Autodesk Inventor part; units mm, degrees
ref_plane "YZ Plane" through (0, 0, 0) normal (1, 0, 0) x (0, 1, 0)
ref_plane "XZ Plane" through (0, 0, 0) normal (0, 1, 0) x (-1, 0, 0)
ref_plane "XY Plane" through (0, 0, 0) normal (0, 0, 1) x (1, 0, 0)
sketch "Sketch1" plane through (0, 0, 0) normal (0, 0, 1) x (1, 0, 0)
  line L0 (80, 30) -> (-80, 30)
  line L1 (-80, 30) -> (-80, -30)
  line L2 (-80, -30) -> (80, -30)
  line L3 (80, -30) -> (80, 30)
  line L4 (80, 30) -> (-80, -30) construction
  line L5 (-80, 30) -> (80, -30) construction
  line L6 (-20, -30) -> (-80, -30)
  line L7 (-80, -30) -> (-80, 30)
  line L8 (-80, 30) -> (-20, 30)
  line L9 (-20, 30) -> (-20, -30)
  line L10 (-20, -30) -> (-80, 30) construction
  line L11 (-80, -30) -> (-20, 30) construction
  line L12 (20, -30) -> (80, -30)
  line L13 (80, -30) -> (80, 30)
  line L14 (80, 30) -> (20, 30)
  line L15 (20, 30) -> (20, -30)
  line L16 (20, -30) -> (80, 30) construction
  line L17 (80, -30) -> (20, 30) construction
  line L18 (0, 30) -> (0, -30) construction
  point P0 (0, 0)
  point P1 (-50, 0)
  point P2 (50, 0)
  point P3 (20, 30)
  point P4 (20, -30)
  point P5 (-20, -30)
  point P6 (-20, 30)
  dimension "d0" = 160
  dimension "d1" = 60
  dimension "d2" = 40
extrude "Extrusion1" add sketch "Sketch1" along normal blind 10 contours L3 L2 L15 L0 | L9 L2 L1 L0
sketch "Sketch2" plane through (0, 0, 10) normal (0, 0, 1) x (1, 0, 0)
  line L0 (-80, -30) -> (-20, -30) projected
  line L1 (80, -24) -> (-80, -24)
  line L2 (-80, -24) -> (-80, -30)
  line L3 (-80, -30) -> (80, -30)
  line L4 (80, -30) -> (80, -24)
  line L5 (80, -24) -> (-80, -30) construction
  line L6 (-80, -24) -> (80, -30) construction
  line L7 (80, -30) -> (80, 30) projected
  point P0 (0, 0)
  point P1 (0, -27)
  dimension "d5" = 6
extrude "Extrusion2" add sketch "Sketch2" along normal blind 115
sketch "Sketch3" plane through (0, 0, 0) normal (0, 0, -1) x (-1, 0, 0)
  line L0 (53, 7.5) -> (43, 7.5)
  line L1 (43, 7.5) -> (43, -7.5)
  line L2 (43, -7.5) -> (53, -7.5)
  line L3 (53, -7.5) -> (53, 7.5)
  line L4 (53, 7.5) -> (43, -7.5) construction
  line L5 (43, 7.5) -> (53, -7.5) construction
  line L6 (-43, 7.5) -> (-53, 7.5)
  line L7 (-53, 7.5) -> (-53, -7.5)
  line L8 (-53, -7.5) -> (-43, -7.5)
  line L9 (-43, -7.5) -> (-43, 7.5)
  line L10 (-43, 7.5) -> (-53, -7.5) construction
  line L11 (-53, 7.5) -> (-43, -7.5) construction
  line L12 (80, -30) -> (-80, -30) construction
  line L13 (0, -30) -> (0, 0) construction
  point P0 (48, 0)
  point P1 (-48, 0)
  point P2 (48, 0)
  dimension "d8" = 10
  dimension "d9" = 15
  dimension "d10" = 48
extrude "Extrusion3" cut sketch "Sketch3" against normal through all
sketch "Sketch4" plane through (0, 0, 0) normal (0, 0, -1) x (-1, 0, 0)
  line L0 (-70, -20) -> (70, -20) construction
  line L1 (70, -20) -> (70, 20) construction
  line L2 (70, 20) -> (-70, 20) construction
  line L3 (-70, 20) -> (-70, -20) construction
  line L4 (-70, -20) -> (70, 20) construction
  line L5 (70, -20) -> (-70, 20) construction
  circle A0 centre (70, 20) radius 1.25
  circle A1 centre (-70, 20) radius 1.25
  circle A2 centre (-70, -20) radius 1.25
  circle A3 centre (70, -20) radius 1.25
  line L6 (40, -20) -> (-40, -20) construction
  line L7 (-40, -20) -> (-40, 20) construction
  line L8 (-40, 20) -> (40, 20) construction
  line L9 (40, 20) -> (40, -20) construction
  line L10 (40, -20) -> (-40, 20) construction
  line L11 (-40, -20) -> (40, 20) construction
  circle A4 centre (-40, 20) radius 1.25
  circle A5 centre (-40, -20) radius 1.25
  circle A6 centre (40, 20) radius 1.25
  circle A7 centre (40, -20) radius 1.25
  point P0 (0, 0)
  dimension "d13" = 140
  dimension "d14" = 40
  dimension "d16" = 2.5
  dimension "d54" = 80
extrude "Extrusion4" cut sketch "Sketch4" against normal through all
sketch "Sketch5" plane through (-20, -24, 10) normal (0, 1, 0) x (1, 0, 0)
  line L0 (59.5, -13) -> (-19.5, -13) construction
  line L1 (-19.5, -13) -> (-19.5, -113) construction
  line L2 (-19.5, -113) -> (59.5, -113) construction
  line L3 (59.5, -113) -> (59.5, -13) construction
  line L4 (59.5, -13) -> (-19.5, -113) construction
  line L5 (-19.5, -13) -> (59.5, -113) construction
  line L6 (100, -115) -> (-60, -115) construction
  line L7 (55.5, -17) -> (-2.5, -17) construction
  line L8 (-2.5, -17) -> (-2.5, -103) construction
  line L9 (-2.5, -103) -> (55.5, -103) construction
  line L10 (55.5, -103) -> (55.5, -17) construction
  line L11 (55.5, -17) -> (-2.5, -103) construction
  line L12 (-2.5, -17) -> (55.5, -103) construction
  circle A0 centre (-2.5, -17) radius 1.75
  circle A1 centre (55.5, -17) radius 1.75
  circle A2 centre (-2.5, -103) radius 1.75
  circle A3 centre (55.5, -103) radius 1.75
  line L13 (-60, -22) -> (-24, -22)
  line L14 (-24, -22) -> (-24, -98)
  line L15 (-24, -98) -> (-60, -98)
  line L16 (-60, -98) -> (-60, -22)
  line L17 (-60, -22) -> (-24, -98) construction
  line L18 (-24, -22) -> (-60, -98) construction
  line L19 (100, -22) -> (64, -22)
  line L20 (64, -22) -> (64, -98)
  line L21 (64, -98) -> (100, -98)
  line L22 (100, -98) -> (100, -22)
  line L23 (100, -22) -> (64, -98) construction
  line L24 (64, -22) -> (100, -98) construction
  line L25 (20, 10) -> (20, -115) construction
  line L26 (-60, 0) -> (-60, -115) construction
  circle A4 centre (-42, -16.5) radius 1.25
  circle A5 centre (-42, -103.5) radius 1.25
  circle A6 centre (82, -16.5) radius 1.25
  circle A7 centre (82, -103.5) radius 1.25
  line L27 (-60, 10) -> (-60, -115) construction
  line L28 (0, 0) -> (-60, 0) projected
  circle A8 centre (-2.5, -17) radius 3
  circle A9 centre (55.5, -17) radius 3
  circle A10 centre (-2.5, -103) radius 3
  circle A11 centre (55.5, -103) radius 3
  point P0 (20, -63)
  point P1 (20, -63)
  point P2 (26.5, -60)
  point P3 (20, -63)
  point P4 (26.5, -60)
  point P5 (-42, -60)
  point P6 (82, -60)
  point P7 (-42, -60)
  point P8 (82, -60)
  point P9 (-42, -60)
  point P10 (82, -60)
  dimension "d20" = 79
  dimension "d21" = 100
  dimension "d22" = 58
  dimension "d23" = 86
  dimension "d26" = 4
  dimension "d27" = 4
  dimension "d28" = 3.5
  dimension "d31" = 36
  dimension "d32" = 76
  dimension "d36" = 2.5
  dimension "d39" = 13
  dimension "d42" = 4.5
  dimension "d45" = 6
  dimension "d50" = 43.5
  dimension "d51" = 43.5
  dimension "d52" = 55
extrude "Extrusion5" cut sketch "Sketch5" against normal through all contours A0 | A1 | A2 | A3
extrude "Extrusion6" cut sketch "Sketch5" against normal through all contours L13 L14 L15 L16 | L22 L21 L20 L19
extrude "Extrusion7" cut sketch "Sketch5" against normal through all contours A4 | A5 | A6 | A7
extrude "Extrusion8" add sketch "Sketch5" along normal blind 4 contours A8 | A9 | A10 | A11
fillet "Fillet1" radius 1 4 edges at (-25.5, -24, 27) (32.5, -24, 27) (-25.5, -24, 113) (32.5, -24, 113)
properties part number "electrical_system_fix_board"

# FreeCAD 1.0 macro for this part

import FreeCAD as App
import Part
import Sketcher
from FreeCAD import Vector


def edges_at(feature, points):
    """Names of the edges that pass closest to the given points."""
    edges = feature.Shape.Edges
    near = lambda p: min(range(len(edges)), key=lambda i: edges[i].distToShape(Part.Vertex(*p))[0])
    return sorted({f"Edge{near(p) + 1}" for p in points})

doc = App.newDocument("Part")
body = doc.addObject("PartDesign::Body", "Body")
body.AllowCompound = True

sketch1 = body.newObject("Sketcher::SketchObject", "Sketch")
sketch1.AttachmentSupport = (doc.getObject("XY_Plane"), [""])
sketch1.MapMode = "FlatFace"
sketch1.addGeometry([
    Part.LineSegment(Vector(80, -30, 0), Vector(80, 30, 0)),
    Part.LineSegment(Vector(80, 30, 0), Vector(20, 30, 0)),
    Part.LineSegment(Vector(20, 30, 0), Vector(20, -30, 0)),
    Part.LineSegment(Vector(20, -30, 0), Vector(80, -30, 0)),
    Part.LineSegment(Vector(-20, -30, 0), Vector(-20, 30, 0)),
    Part.LineSegment(Vector(-20, 30, 0), Vector(-80, 30, 0)),
    Part.LineSegment(Vector(-80, 30, 0), Vector(-80, -30, 0)),
    Part.LineSegment(Vector(-80, -30, 0), Vector(-20, -30, 0)),
], False)
sketch1.addConstraint([
    Sketcher.Constraint("Coincident", 0, 2, 1, 1),
    Sketcher.Constraint("Coincident", 1, 2, 2, 1),
    Sketcher.Constraint("Coincident", 2, 2, 3, 1),
    Sketcher.Constraint("Coincident", 3, 2, 0, 1),
    Sketcher.Constraint("Coincident", 4, 2, 5, 1),
    Sketcher.Constraint("Coincident", 5, 2, 6, 1),
    Sketcher.Constraint("Coincident", 6, 2, 7, 1),
    Sketcher.Constraint("Coincident", 7, 2, 4, 1),
    Sketcher.Constraint("Vertical", 0),
    Sketcher.Constraint("Horizontal", 1),
    Sketcher.Constraint("Vertical", 2),
    Sketcher.Constraint("Horizontal", 3),
    Sketcher.Constraint("Vertical", 4),
    Sketcher.Constraint("Horizontal", 5),
    Sketcher.Constraint("Vertical", 6),
    Sketcher.Constraint("Horizontal", 7),
    Sketcher.Constraint("Symmetric", 2, 2, 4, 2, -1, 1),
    Sketcher.Constraint("Symmetric", 0, 2, 6, 2, -1, 1),
    Sketcher.Constraint("Horizontal", 1, 2, 4, 2),
    Sketcher.Constraint("Equal", 7, 0),
    Sketcher.Constraint("DistanceX", 1, 2, 1, 1, 60.0),
    Sketcher.Constraint("DistanceX", 4, 2, 1, 2, 40.0),
])
pad1 = body.newObject("PartDesign::Pad", "Pad")
pad1.Profile = sketch1
pad1.Length = 10

sketch2 = body.newObject("Sketcher::SketchObject", "Sketch001")
sketch2.AttachmentSupport = (doc.getObject("XY_Plane"), [""])
sketch2.MapMode = "FlatFace"
sketch2.AttachmentOffset = App.Placement(Vector(0, 0, 10), App.Rotation())
sketch2.addGeometry([
    Part.LineSegment(Vector(-80, -24, 0), Vector(-80, -30, 0)),
    Part.LineSegment(Vector(-80, -30, 0), Vector(80, -30, 0)),
    Part.LineSegment(Vector(80, -30, 0), Vector(80, -24, 0)),
    Part.LineSegment(Vector(80, -24, 0), Vector(-80, -24, 0)),
], False)
sketch2.addConstraint([
    Sketcher.Constraint("Coincident", 0, 2, 1, 1),
    Sketcher.Constraint("Coincident", 1, 2, 2, 1),
    Sketcher.Constraint("Coincident", 2, 2, 3, 1),
    Sketcher.Constraint("Coincident", 3, 2, 0, 1),
    Sketcher.Constraint("Vertical", 0),
    Sketcher.Constraint("Horizontal", 1),
    Sketcher.Constraint("Vertical", 2),
    Sketcher.Constraint("Horizontal", 3),
    Sketcher.Constraint("DistanceY", 0, 2, 0, 1, 6.0),
    Sketcher.Constraint("DistanceX", 1, 1, 1, 2, 160.0),
    Sketcher.Constraint("DistanceX", 0, 2, -1, 1, 80.0),
    Sketcher.Constraint("DistanceY", 0, 2, -1, 1, 30.0),
])
pad2 = body.newObject("PartDesign::Pad", "Pad001")
pad2.Profile = sketch2
pad2.Length = 115

sketch3 = body.newObject("Sketcher::SketchObject", "Sketch002")
sketch3.AttachmentSupport = (doc.getObject("XY_Plane"), [""])
sketch3.MapMode = "FlatFace"
sketch3.addGeometry([
    Part.LineSegment(Vector(-53, -8, 0), Vector(-53, 8, 0)),
    Part.LineSegment(Vector(-53, 8, 0), Vector(-43, 8, 0)),
    Part.LineSegment(Vector(-43, 8, 0), Vector(-43, -8, 0)),
    Part.LineSegment(Vector(-43, -8, 0), Vector(-53, -8, 0)),
    Part.LineSegment(Vector(43, -8, 0), Vector(43, 8, 0)),
    Part.LineSegment(Vector(43, 8, 0), Vector(53, 8, 0)),
    Part.LineSegment(Vector(53, 8, 0), Vector(53, -8, 0)),
    Part.LineSegment(Vector(53, -8, 0), Vector(43, -8, 0)),
], False)
sketch3.addConstraint([
    Sketcher.Constraint("Coincident", 0, 2, 1, 1),
    Sketcher.Constraint("Coincident", 1, 2, 2, 1),
    Sketcher.Constraint("Coincident", 2, 2, 3, 1),
    Sketcher.Constraint("Coincident", 3, 2, 0, 1),
    Sketcher.Constraint("Coincident", 4, 2, 5, 1),
    Sketcher.Constraint("Coincident", 5, 2, 6, 1),
    Sketcher.Constraint("Coincident", 6, 2, 7, 1),
    Sketcher.Constraint("Coincident", 7, 2, 4, 1),
    Sketcher.Constraint("Vertical", 0),
    Sketcher.Constraint("Horizontal", 1),
    Sketcher.Constraint("Vertical", 2),
    Sketcher.Constraint("Horizontal", 3),
    Sketcher.Constraint("Vertical", 4),
    Sketcher.Constraint("Horizontal", 5),
    Sketcher.Constraint("Vertical", 6),
    Sketcher.Constraint("Horizontal", 7),
    Sketcher.Constraint("Symmetric", 2, 2, 4, 2, -1, 1),
    Sketcher.Constraint("Symmetric", 0, 2, 6, 2, -1, 1),
    Sketcher.Constraint("Horizontal", 1, 2, 4, 2),
    Sketcher.Constraint("DistanceX", 1, 1, 1, 2, 10.0),
    Sketcher.Constraint("DistanceY", 0, 1, 0, 2, 15.0),
    Sketcher.Constraint("DistanceX", 0, 2, -1, 1, 53.0),
])
pocket1 = body.newObject("PartDesign::Pocket", "Pocket")
pocket1.Profile = sketch3
pocket1.Type = "ThroughAll"
pocket1.Reversed = True

sketch4 = body.newObject("Sketcher::SketchObject", "Sketch003")
sketch4.AttachmentSupport = (doc.getObject("XY_Plane"), [""])
sketch4.MapMode = "FlatFace"
sketch4.addGeometry([
    Part.Circle(Vector(-70, 20, 0), Vector(0, 0, 1), 1.2),
    Part.Circle(Vector(70, 20, 0), Vector(0, 0, 1), 1.2),
    Part.Circle(Vector(70, -20, 0), Vector(0, 0, 1), 1.2),
    Part.Circle(Vector(-70, -20, 0), Vector(0, 0, 1), 1.2),
    Part.Circle(Vector(40, 20, 0), Vector(0, 0, 1), 1.2),
    Part.Circle(Vector(40, -20, 0), Vector(0, 0, 1), 1.2),
    Part.Circle(Vector(-40, 20, 0), Vector(0, 0, 1), 1.2),
    Part.Circle(Vector(-40, -20, 0), Vector(0, 0, 1), 1.2),
], False)
sketch4.addConstraint([
    Sketcher.Constraint("Equal", 0, 1),
    Sketcher.Constraint("Equal", 1, 2),
    Sketcher.Constraint("Equal", 2, 3),
    Sketcher.Constraint("Equal", 3, 4),
    Sketcher.Constraint("Equal", 4, 5),
    Sketcher.Constraint("Equal", 5, 6),
    Sketcher.Constraint("Equal", 6, 7),
    Sketcher.Constraint("Symmetric", 0, 3, 2, 3, -1, 1),
    Sketcher.Constraint("Symmetric", 1, 3, 3, 3, -1, 1),
    Sketcher.Constraint("Symmetric", 5, 3, 6, 3, -1, 1),
    Sketcher.Constraint("Symmetric", 4, 3, 7, 3, -1, 1),
    Sketcher.Constraint("Symmetric", 0, 3, 1, 3, -2),
    Sketcher.Constraint("Symmetric", 4, 3, 6, 3, -2),
    Sketcher.Constraint("Horizontal", 1, 3, 4, 3),
    Sketcher.Constraint("Diameter", 0, 2.5),
    Sketcher.Constraint("DistanceX", -1, 1, 4, 3, 40.0),
    Sketcher.Constraint("DistanceX", 0, 3, 1, 3, 140.0),
    Sketcher.Constraint("DistanceY", 2, 3, 1, 3, 40.0),
])
pocket2 = body.newObject("PartDesign::Pocket", "Pocket001")
pocket2.Profile = sketch4
pocket2.Type = "ThroughAll"
pocket2.Reversed = True

sketch5 = body.newObject("Sketcher::SketchObject", "Sketch004")
sketch5.AttachmentSupport = (doc.getObject("XZ_Plane"), [""])
sketch5.MapMode = "FlatFace"
sketch5.AttachmentOffset = App.Placement(Vector(0, 0, 24), App.Rotation())
sketch5.addGeometry([
    Part.Circle(Vector(-22.5, 27, 0), Vector(0, 0, 1), 1.8),
    Part.Circle(Vector(35.5, 27, 0), Vector(0, 0, 1), 1.8),
    Part.Circle(Vector(-22.5, 113, 0), Vector(0, 0, 1), 1.8),
    Part.Circle(Vector(35.5, 113, 0), Vector(0, 0, 1), 1.8),
], False)
sketch5.addConstraint([
    Sketcher.Constraint("Equal", 0, 1),
    Sketcher.Constraint("Equal", 1, 2),
    Sketcher.Constraint("Equal", 2, 3),
    Sketcher.Constraint("Horizontal", 0, 3, 1, 3),
    Sketcher.Constraint("Horizontal", 2, 3, 3, 3),
    Sketcher.Constraint("Vertical", 0, 3, 2, 3),
    Sketcher.Constraint("Vertical", 1, 3, 3, 3),
    Sketcher.Constraint("Diameter", 0, 3.5),
    Sketcher.Constraint("DistanceX", 0, 3, 1, 3, 58.0),
    Sketcher.Constraint("DistanceY", 0, 3, 2, 3, 86.0),
    Sketcher.Constraint("DistanceY", -1, 1, 0, 3, 27.0),
    Sketcher.Constraint("DistanceX", 0, 3, -1, 1, 22.5),
])
pocket3 = body.newObject("PartDesign::Pocket", "Pocket002")
pocket3.Profile = sketch5
pocket3.Type = "ThroughAll"
pocket3.Reversed = True

sketch6 = body.newObject("Sketcher::SketchObject", "Sketch005")
sketch6.AttachmentSupport = (doc.getObject("XZ_Plane"), [""])
sketch6.MapMode = "FlatFace"
sketch6.AttachmentOffset = App.Placement(Vector(0, 0, 24), App.Rotation())
sketch6.addGeometry([
    Part.LineSegment(Vector(-44, 32, 0), Vector(-80, 32, 0)),
    Part.LineSegment(Vector(-80, 32, 0), Vector(-80, 108, 0)),
    Part.LineSegment(Vector(-80, 108, 0), Vector(-44, 108, 0)),
    Part.LineSegment(Vector(-44, 108, 0), Vector(-44, 32, 0)),
    Part.LineSegment(Vector(80, 108, 0), Vector(80, 32, 0)),
    Part.LineSegment(Vector(80, 32, 0), Vector(44, 32, 0)),
    Part.LineSegment(Vector(44, 32, 0), Vector(44, 108, 0)),
    Part.LineSegment(Vector(44, 108, 0), Vector(80, 108, 0)),
], False)
sketch6.addConstraint([
    Sketcher.Constraint("Coincident", 0, 2, 1, 1),
    Sketcher.Constraint("Coincident", 1, 2, 2, 1),
    Sketcher.Constraint("Coincident", 2, 2, 3, 1),
    Sketcher.Constraint("Coincident", 3, 2, 0, 1),
    Sketcher.Constraint("Coincident", 4, 2, 5, 1),
    Sketcher.Constraint("Coincident", 5, 2, 6, 1),
    Sketcher.Constraint("Coincident", 6, 2, 7, 1),
    Sketcher.Constraint("Coincident", 7, 2, 4, 1),
    Sketcher.Constraint("Horizontal", 0),
    Sketcher.Constraint("Vertical", 1),
    Sketcher.Constraint("Horizontal", 2),
    Sketcher.Constraint("Vertical", 3),
    Sketcher.Constraint("Vertical", 4),
    Sketcher.Constraint("Horizontal", 5),
    Sketcher.Constraint("Vertical", 6),
    Sketcher.Constraint("Horizontal", 7),
    Sketcher.Constraint("Symmetric", 0, 2, 4, 2, -2),
    Sketcher.Constraint("Symmetric", 2, 2, 6, 2, -2),
    Sketcher.Constraint("DistanceX", 0, 2, 0, 1, 36.0),
    Sketcher.Constraint("DistanceY", 1, 1, 1, 2, 76.0),
    Sketcher.Constraint("DistanceX", 0, 2, -1, 1, 80.0),
    Sketcher.Constraint("DistanceY", -1, 1, 0, 2, 32.0),
])
pocket4 = body.newObject("PartDesign::Pocket", "Pocket003")
pocket4.Profile = sketch6
pocket4.Type = "ThroughAll"
pocket4.Reversed = True

sketch7 = body.newObject("Sketcher::SketchObject", "Sketch006")
sketch7.AttachmentSupport = (doc.getObject("XZ_Plane"), [""])
sketch7.MapMode = "FlatFace"
sketch7.AttachmentOffset = App.Placement(Vector(0, 0, 24), App.Rotation())
sketch7.addGeometry([
    Part.Circle(Vector(-62, 26.5, 0), Vector(0, 0, 1), 1.2),
    Part.Circle(Vector(-62, 113.5, 0), Vector(0, 0, 1), 1.2),
    Part.Circle(Vector(62, 26.5, 0), Vector(0, 0, 1), 1.2),
    Part.Circle(Vector(62, 113.5, 0), Vector(0, 0, 1), 1.2),
], False)
sketch7.addConstraint([
    Sketcher.Constraint("Equal", 0, 1),
    Sketcher.Constraint("Equal", 1, 2),
    Sketcher.Constraint("Equal", 2, 3),
    Sketcher.Constraint("Symmetric", 0, 3, 2, 3, -2),
    Sketcher.Constraint("Symmetric", 1, 3, 3, 3, -2),
    Sketcher.Constraint("Vertical", 0, 3, 1, 3),
    Sketcher.Constraint("Diameter", 0, 2.5),
    Sketcher.Constraint("DistanceX", 0, 3, -1, 1, 62.0),
    Sketcher.Constraint("DistanceY", 0, 3, 1, 3, 87.0),
    Sketcher.Constraint("DistanceY", -1, 1, 0, 3, 26.5),
])
pocket5 = body.newObject("PartDesign::Pocket", "Pocket004")
pocket5.Profile = sketch7
pocket5.Type = "ThroughAll"
pocket5.Reversed = True

sketch8 = body.newObject("Sketcher::SketchObject", "Sketch007")
sketch8.AttachmentSupport = (doc.getObject("XZ_Plane"), [""])
sketch8.MapMode = "FlatFace"
sketch8.AttachmentOffset = App.Placement(Vector(0, 0, 24), App.Rotation())
sketch8.addGeometry([
    Part.Circle(Vector(-22.5, 27, 0), Vector(0, 0, 1), 3),
    Part.Circle(Vector(-22.5, 27, 0), Vector(0, 0, 1), 1.8),
    Part.Circle(Vector(35.5, 27, 0), Vector(0, 0, 1), 3),
    Part.Circle(Vector(35.5, 27, 0), Vector(0, 0, 1), 1.8),
    Part.Circle(Vector(-22.5, 113, 0), Vector(0, 0, 1), 3),
    Part.Circle(Vector(-22.5, 113, 0), Vector(0, 0, 1), 1.8),
    Part.Circle(Vector(35.5, 113, 0), Vector(0, 0, 1), 3),
    Part.Circle(Vector(35.5, 113, 0), Vector(0, 0, 1), 1.8),
], False)
sketch8.addConstraint([
    Sketcher.Constraint("Coincident", 1, 3, 0, 3),
    Sketcher.Constraint("Coincident", 3, 3, 2, 3),
    Sketcher.Constraint("Coincident", 5, 3, 4, 3),
    Sketcher.Constraint("Coincident", 7, 3, 6, 3),
    Sketcher.Constraint("Equal", 0, 2),
    Sketcher.Constraint("Equal", 1, 3),
    Sketcher.Constraint("Equal", 2, 4),
    Sketcher.Constraint("Equal", 3, 5),
    Sketcher.Constraint("Equal", 4, 6),
    Sketcher.Constraint("Equal", 5, 7),
    Sketcher.Constraint("Horizontal", 1, 3, 2, 3),
    Sketcher.Constraint("Horizontal", 5, 3, 6, 3),
    Sketcher.Constraint("Vertical", 1, 3, 4, 3),
    Sketcher.Constraint("Vertical", 3, 3, 6, 3),
    Sketcher.Constraint("Diameter", 0, 6.0),
    Sketcher.Constraint("Diameter", 1, 3.5),
    Sketcher.Constraint("DistanceX", 0, 3, 2, 3, 58.0),
    Sketcher.Constraint("DistanceY", 0, 3, 4, 3, 86.0),
    Sketcher.Constraint("DistanceY", -1, 1, 0, 3, 27.0),
    Sketcher.Constraint("DistanceX", 0, 3, -1, 1, 22.5),
])
pad3 = body.newObject("PartDesign::Pad", "Pad002")
pad3.Profile = sketch8
pad3.Length = 4
pad3.Reversed = True
doc.recompute()

fillet = body.newObject("PartDesign::Fillet", "Fillet")
fillet.Base = (pad3, edges_at(pad3, [
    (-25.5, -24, 27),
    (32.5, -24, 27),
    (-25.5, -24, 113),
    (32.5, -24, 113),
]))
fillet.Radius = 1

doc.recompute()
